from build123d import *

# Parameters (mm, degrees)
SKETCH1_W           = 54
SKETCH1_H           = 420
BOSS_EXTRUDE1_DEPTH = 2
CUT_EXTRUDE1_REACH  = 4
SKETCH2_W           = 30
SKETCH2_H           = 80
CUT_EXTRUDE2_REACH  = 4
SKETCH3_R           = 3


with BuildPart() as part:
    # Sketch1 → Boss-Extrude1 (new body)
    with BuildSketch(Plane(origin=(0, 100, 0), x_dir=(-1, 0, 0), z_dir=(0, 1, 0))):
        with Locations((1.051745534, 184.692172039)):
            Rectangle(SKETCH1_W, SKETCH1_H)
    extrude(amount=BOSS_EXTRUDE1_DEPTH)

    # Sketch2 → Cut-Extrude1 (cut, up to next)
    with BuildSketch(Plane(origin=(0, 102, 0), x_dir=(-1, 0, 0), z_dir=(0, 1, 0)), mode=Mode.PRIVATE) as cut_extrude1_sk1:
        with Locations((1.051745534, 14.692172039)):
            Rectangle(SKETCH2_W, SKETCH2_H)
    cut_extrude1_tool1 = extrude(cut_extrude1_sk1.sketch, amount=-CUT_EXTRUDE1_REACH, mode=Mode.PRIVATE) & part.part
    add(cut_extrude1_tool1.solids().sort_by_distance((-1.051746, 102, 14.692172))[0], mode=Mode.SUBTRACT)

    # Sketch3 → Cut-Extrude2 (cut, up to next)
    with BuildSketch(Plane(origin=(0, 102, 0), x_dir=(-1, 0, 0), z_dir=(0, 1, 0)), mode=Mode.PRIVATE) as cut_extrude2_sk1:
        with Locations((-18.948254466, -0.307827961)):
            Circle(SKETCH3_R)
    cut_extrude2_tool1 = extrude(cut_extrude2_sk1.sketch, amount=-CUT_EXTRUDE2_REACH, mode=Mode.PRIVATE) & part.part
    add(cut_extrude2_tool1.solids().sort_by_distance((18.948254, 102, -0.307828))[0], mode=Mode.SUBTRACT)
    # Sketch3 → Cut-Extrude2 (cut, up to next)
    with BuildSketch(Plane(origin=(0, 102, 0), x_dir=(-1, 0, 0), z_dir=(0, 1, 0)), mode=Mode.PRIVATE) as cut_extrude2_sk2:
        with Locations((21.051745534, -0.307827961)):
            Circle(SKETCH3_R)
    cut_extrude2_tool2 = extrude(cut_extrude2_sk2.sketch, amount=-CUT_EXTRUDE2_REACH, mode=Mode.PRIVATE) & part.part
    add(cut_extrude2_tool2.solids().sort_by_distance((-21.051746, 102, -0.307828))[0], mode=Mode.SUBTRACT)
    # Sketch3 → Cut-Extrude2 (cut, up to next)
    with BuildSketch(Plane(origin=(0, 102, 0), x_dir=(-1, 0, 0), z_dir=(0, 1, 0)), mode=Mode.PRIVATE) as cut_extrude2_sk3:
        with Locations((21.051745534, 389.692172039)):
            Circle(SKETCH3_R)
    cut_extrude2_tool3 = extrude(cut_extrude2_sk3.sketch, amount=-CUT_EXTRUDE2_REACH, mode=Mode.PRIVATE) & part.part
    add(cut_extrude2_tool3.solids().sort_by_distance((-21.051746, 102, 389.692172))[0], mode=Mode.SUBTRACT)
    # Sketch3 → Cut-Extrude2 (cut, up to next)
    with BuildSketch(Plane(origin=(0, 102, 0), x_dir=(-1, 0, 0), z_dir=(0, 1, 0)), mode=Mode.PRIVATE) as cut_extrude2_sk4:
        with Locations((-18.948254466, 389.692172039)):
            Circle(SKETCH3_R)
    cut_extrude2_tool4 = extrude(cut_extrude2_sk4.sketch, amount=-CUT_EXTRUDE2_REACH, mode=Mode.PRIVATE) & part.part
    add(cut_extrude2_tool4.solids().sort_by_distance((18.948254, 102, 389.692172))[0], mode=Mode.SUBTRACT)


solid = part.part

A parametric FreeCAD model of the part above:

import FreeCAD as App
import Part
import Sketcher
from FreeCAD import Vector
Q = App.Units.Quantity


def add_polygon(sketch, points):
    """Adds a closed chain of lines whose ends are joined by coincident constraints."""
    first, n = sketch.GeometryCount, len(points)
    for a, b in zip(points, points[1:] + points[:1]):
        sketch.addGeometry(Part.LineSegment(App.Vector(*a, 0), App.Vector(*b, 0)), False)
    for i in range(n):
        sketch.addConstraint(Sketcher.Constraint("Coincident", first + i, 2, first + (i + 1) % n, 1))

doc = App.newDocument("Part")
body = doc.addObject("PartDesign::Body", "Body")

sketch1 = body.newObject("Sketcher::SketchObject", "Sketch")
sketch1.AttachmentSupport = (doc.getObject("XZ_Plane"), [""])
sketch1.MapMode = "FlatFace"
sketch1.AttachmentOffset = App.Placement(Vector(0, 0, -100), App.Rotation())
add_polygon(sketch1, [(25.948254, 394.692172), (25.948254, -25.307828), (-28.051746, -25.307828), (-28.051746, 394.692172)])
sketch1.addConstraint([
    Sketcher.Constraint("Vertical", 0),
    Sketcher.Constraint("Horizontal", 1),
    Sketcher.Constraint("Vertical", 2),
    Sketcher.Constraint("Horizontal", 3),
    Sketcher.Constraint("DistanceX", 1, 2, 1, 1, Q("54 mm")),
    Sketcher.Constraint("DistanceY", 0, 2, 0, 1, Q("420 mm")),
    Sketcher.Constraint("DistanceX", -1, 1, 0, 2, Q("25.948254 mm")),
    Sketcher.Constraint("DistanceY", 0, 2, -1, 1, Q("25.307828 mm")),
])
pad1 = body.newObject("PartDesign::Pad", "Pad")
pad1.Profile = sketch1
pad1.Length = 2
pad1.Reversed = True

sketch2 = body.newObject("Sketcher::SketchObject", "Sketch001")
sketch2.AttachmentSupport = (doc.getObject("XZ_Plane"), [""])
sketch2.MapMode = "FlatFace"
sketch2.AttachmentOffset = App.Placement(Vector(0, 0, -102), App.Rotation())
add_polygon(sketch2, [(13.948254, 54.692172), (13.948254, -25.307828), (-16.051746, -25.307828), (-16.051746, 54.692172)])
sketch2.addConstraint([
    Sketcher.Constraint("Vertical", 0),
    Sketcher.Constraint("Horizontal", 1),
    Sketcher.Constraint("Vertical", 2),
    Sketcher.Constraint("Horizontal", 3),
    Sketcher.Constraint("DistanceX", 1, 2, 1, 1, Q("30 mm")),
    Sketcher.Constraint("DistanceY", 0, 2, 0, 1, Q("80 mm")),
    Sketcher.Constraint("DistanceX", -1, 1, 0, 2, Q("13.948254 mm")),
    Sketcher.Constraint("DistanceY", 0, 2, -1, 1, Q("25.307828 mm")),
])
pocket1 = body.newObject("PartDesign::Pocket", "Pocket")
pocket1.Profile = sketch2
pocket1.Type = "UpToFirst"
pocket1.Reversed = True

sketch3 = body.newObject("Sketcher::SketchObject", "Sketch002")
sketch3.AttachmentSupport = (doc.getObject("XZ_Plane"), [""])
sketch3.MapMode = "FlatFace"
sketch3.AttachmentOffset = App.Placement(Vector(0, 0, -102), App.Rotation())
sketch3.addGeometry(Part.Circle(Vector(18.948254, -0.307828, 0), Vector(0, 0, 1), 3), False)
sketch3.addConstraint([
    Sketcher.Constraint("Diameter", 0, Q("6 mm")),
    Sketcher.Constraint("DistanceX", -1, 1, 0, 3, Q("18.948254 mm")),
    Sketcher.Constraint("DistanceY", 0, 3, -1, 1, Q("0.307828 mm")),
])
pocket2 = body.newObject("PartDesign::Pocket", "Pocket001")
pocket2.Profile = sketch3
pocket2.Type = "UpToFirst"
pocket2.Reversed = True

sketch4 = body.newObject("Sketcher::SketchObject", "Sketch003")
sketch4.AttachmentSupport = (doc.getObject("XZ_Plane"), [""])
sketch4.MapMode = "FlatFace"
sketch4.AttachmentOffset = App.Placement(Vector(0, 0, -102), App.Rotation())
sketch4.addGeometry(Part.Circle(Vector(-21.051746, -0.307828, 0), Vector(0, 0, 1), 3), False)
sketch4.addConstraint([
    Sketcher.Constraint("Diameter", 0, Q("6 mm")),
    Sketcher.Constraint("DistanceX", 0, 3, -1, 1, Q("21.051746 mm")),
    Sketcher.Constraint("DistanceY", 0, 3, -1, 1, Q("0.307828 mm")),
])
pocket3 = body.newObject("PartDesign::Pocket", "Pocket002")
pocket3.Profile = sketch4
pocket3.Type = "UpToFirst"
pocket3.Reversed = True

sketch5 = body.newObject("Sketcher::SketchObject", "Sketch004")
sketch5.AttachmentSupport = (doc.getObject("XZ_Plane"), [""])
sketch5.MapMode = "FlatFace"
sketch5.AttachmentOffset = App.Placement(Vector(0, 0, -102), App.Rotation())
sketch5.addGeometry(Part.Circle(Vector(-21.051746, 389.692172, 0), Vector(0, 0, 1), 3), False)
sketch5.addConstraint([
    Sketcher.Constraint("Diameter", 0, Q("6 mm")),
    Sketcher.Constraint("DistanceX", 0, 3, -1, 1, Q("21.051746 mm")),
    Sketcher.Constraint("DistanceY", -1, 1, 0, 3, Q("389.692172 mm")),
])
pocket4 = body.newObject("PartDesign::Pocket", "Pocket003")
pocket4.Profile = sketch5
pocket4.Type = "UpToFirst"
pocket4.Reversed = True

sketch6 = body.newObject("Sketcher::SketchObject", "Sketch005")
sketch6.AttachmentSupport = (doc.getObject("XZ_Plane"), [""])
sketch6.MapMode = "FlatFace"
sketch6.AttachmentOffset = App.Placement(Vector(0, 0, -102), App.Rotation())
sketch6.addGeometry(Part.Circle(Vector(18.948254, 389.692172, 0), Vector(0, 0, 1), 3), False)
sketch6.addConstraint([
    Sketcher.Constraint("Diameter", 0, Q("6 mm")),
    Sketcher.Constraint("DistanceX", -1, 1, 0, 3, Q("18.948254 mm")),
    Sketcher.Constraint("DistanceY", -1, 1, 0, 3, Q("389.692172 mm")),
])
pocket5 = body.newObject("PartDesign::Pocket", "Pocket004")
pocket5.Profile = sketch6
pocket5.Type = "UpToFirst"
pocket5.Reversed = True

doc.recompute()
